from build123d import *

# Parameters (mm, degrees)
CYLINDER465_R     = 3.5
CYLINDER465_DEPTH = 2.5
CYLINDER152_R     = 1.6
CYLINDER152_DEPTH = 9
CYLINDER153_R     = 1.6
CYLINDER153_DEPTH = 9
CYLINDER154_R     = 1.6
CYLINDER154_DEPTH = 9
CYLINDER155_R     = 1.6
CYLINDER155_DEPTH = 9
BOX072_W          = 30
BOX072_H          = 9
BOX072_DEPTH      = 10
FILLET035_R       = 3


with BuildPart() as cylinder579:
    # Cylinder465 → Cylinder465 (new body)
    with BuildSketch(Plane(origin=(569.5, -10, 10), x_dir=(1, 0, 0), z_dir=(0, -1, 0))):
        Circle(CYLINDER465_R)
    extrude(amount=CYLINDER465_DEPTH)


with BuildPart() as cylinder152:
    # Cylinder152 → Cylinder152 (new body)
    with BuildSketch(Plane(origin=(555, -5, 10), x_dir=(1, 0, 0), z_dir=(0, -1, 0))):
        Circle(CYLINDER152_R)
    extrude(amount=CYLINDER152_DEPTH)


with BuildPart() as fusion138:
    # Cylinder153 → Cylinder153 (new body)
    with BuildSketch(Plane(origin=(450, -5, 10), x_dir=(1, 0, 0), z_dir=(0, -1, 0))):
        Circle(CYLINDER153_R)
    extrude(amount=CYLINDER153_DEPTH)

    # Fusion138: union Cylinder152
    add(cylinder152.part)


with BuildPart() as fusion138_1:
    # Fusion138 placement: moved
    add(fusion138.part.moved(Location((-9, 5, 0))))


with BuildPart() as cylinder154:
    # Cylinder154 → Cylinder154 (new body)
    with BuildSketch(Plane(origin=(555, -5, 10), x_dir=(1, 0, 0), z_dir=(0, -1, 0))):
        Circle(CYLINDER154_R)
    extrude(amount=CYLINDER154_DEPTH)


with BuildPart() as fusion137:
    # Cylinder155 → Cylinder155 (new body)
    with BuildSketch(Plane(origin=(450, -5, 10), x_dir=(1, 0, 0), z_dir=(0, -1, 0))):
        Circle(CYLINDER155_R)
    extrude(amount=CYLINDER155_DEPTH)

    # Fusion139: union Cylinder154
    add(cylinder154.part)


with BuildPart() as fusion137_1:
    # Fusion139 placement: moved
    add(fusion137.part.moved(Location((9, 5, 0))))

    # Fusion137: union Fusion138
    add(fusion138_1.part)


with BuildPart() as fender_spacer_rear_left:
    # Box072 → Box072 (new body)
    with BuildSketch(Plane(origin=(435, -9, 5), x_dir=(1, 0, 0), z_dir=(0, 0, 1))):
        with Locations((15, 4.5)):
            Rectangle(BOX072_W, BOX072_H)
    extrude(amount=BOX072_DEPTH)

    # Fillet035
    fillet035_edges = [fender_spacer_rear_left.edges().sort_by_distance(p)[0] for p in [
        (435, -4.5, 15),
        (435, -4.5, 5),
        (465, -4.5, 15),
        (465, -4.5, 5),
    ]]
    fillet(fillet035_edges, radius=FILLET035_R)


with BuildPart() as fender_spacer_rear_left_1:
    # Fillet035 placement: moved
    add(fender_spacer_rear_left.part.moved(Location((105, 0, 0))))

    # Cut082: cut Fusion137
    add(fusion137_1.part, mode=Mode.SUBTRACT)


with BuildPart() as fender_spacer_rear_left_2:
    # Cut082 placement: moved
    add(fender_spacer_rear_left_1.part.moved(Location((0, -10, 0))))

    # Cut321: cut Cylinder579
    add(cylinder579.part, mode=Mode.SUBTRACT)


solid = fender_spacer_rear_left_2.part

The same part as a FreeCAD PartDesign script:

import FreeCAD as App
import Part
import Sketcher

V = App.Vector
Q = App.Units.Quantity


def edges_at(feature, points):
    """Names of the edges that pass closest to the given points."""
    edges = feature.Shape.Edges
    near = lambda p: min(range(len(edges)), key=lambda i: edges[i].distToShape(Part.Vertex(*p))[0])
    return sorted({f"Edge{near(p) + 1}" for p in points})

doc = App.newDocument("Part")
body = doc.addObject("PartDesign::Body", "Body")

sketch1 = doc.addObject("Sketcher::SketchObject", "Sketch")
body.addObject(sketch1)
sketch1.AttachmentSupport = (doc.XZ_Plane, [""])
sketch1.MapMode = "FlatFace"
sketch1.AttachmentOffset = App.Placement(V(0, 0, 10), App.Rotation())
sketch1.addGeometry(Part.Circle(V(569.5, 10, 0), V(0, 0, 1), 3.5), False)
sketch1.addConstraint(Sketcher.Constraint("Diameter", 0, Q("7 mm")))
sketch1.addConstraint(Sketcher.Constraint("DistanceY", -1, 1, 0, 3, Q("10 mm")))
sketch1.addConstraint(Sketcher.Constraint("DistanceX", -1, 1, 0, 3, Q("569.5 mm")))
pad1 = doc.addObject("PartDesign::Pad", "Pad")
body.addObject(pad1)
pad1.Profile = sketch1
pad1.Length = 2.5
body2 = doc.addObject("PartDesign::Body", "Body001")

sketch2 = doc.addObject("Sketcher::SketchObject", "Sketch001")
body2.addObject(sketch2)
sketch2.AttachmentSupport = (doc.getObject("XZ_Plane001"), [""])
sketch2.MapMode = "FlatFace"
sketch2.AttachmentOffset = App.Placement(V(0, 0, 5), App.Rotation())
sketch2.addGeometry(Part.Circle(V(555, 10, 0), V(0, 0, 1), 1.6), False)
sketch2.addConstraint(Sketcher.Constraint("Diameter", 0, Q("3.2 mm")))
sketch2.addConstraint(Sketcher.Constraint("DistanceX", -1, 1, 0, 3, Q("555 mm")))
sketch2.addConstraint(Sketcher.Constraint("DistanceY", -1, 1, 0, 3, Q("10 mm")))
pad2 = doc.addObject("PartDesign::Pad", "Pad001")
body2.addObject(pad2)
pad2.Profile = sketch2
pad2.Length = 9
body3 = doc.addObject("PartDesign::Body", "Body002")
body3.AllowCompound = True

sketch3 = doc.addObject("Sketcher::SketchObject", "Sketch002")
body3.addObject(sketch3)
sketch3.AttachmentSupport = (doc.getObject("XZ_Plane002"), [""])
sketch3.MapMode = "FlatFace"
sketch3.AttachmentOffset = App.Placement(V(0, 0, 5), App.Rotation())
sketch3.addGeometry(Part.Circle(V(450, 10, 0), V(0, 0, 1), 1.6), False)
sketch3.addConstraint(Sketcher.Constraint("Diameter", 0, Q("3.2 mm")))
sketch3.addConstraint(Sketcher.Constraint("DistanceX", -1, 1, 0, 3, Q("450 mm")))
sketch3.addConstraint(Sketcher.Constraint("DistanceY", -1, 1, 0, 3, Q("10 mm")))
pad3 = doc.addObject("PartDesign::Pad", "Pad002")
body3.addObject(pad3)
pad3.Profile = sketch3
pad3.Length = 9
doc.recompute()

boolean = doc.addObject("PartDesign::Boolean", "Boolean")
body3.addObject(boolean)
boolean.Type = "Fuse"
boolean.addObjects([body2])
body4 = doc.addObject("PartDesign::Body", "Body003")
body4.AllowCompound = True
doc.recompute()

body3.Placement = App.Placement(V(-9, 5, 0), App.Rotation(V(0, 0, 1), 0))
boolean2 = doc.addObject("PartDesign::Boolean", "Boolean001")
body4.addObject(boolean2)
boolean2.Type = "Fuse"
boolean2.addObjects([body3])
body5 = doc.addObject("PartDesign::Body", "Body004")

sketch4 = doc.addObject("Sketcher::SketchObject", "Sketch003")
body5.addObject(sketch4)
sketch4.AttachmentSupport = (doc.getObject("XZ_Plane004"), [""])
sketch4.MapMode = "FlatFace"
sketch4.AttachmentOffset = App.Placement(V(0, 0, 5), App.Rotation())
sketch4.addGeometry(Part.Circle(V(555, 10, 0), V(0, 0, 1), 1.6), False)
sketch4.addConstraint(Sketcher.Constraint("Diameter", 0, Q("3.2 mm")))
sketch4.addConstraint(Sketcher.Constraint("DistanceX", -1, 1, 0, 3, Q("555 mm")))
sketch4.addConstraint(Sketcher.Constraint("DistanceY", -1, 1, 0, 3, Q("10 mm")))
pad4 = doc.addObject("PartDesign::Pad", "Pad003")
body5.addObject(pad4)
pad4.Profile = sketch4
pad4.Length = 9
body6 = doc.addObject("PartDesign::Body", "Body005")
body6.AllowCompound = True

sketch5 = doc.addObject("Sketcher::SketchObject", "Sketch004")
body6.addObject(sketch5)
sketch5.AttachmentSupport = (doc.getObject("XZ_Plane005"), [""])
sketch5.MapMode = "FlatFace"
sketch5.AttachmentOffset = App.Placement(V(0, 0, 5), App.Rotation())
sketch5.addGeometry(Part.Circle(V(450, 10, 0), V(0, 0, 1), 1.6), False)
sketch5.addConstraint(Sketcher.Constraint("Diameter", 0, Q("3.2 mm")))
sketch5.addConstraint(Sketcher.Constraint("DistanceX", -1, 1, 0, 3, Q("450 mm")))
sketch5.addConstraint(Sketcher.Constraint("DistanceY", -1, 1, 0, 3, Q("10 mm")))
pad5 = doc.addObject("PartDesign::Pad", "Pad004")
body6.addObject(pad5)
pad5.Profile = sketch5
pad5.Length = 9
doc.recompute()

boolean3 = doc.addObject("PartDesign::Boolean", "Boolean002")
body6.addObject(boolean3)
boolean3.Type = "Fuse"
boolean3.addObjects([body5])
body7 = doc.addObject("PartDesign::Body", "Body006")
body7.AllowCompound = True
doc.recompute()

body6.Placement = App.Placement(V(9, 5, 0), App.Rotation(V(0, 0, 1), 0))
boolean4 = doc.addObject("PartDesign::Boolean", "Boolean003")
body7.addObject(boolean4)
boolean4.Type = "Fuse"
boolean4.addObjects([body6])
doc.recompute()

boolean5 = doc.addObject("PartDesign::Boolean", "Boolean004")
body7.addObject(boolean5)
boolean5.Type = "Fuse"
boolean5.addObjects([body4])
body8 = doc.addObject("PartDesign::Body", "Body007")

sketch6 = doc.addObject("Sketcher::SketchObject", "Sketch005")
body8.addObject(sketch6)
sketch6.AttachmentSupport = (doc.getObject("XY_Plane007"), [""])
sketch6.MapMode = "FlatFace"
sketch6.AttachmentOffset = App.Placement(V(0, 0, 5), App.Rotation())
sketch6.addGeometry(Part.LineSegment(V(435, 0, 0), V(435, -9, 0)), False)
sketch6.addGeometry(Part.LineSegment(V(435, -9, 0), V(465, -9, 0)), False)
sketch6.addGeometry(Part.LineSegment(V(465, -9, 0), V(465, 0, 0)), False)
sketch6.addGeometry(Part.LineSegment(V(465, 0, 0), V(435, 0, 0)), False)
sketch6.addConstraint(Sketcher.Constraint("Coincident", 0, 2, 1, 1))
sketch6.addConstraint(Sketcher.Constraint("Coincident", 1, 2, 2, 1))
sketch6.addConstraint(Sketcher.Constraint("Coincident", 2, 2, 3, 1))
sketch6.addConstraint(Sketcher.Constraint("Coincident", 3, 2, 0, 1))
sketch6.addConstraint(Sketcher.Constraint("Vertical", 0))
sketch6.addConstraint(Sketcher.Constraint("Horizontal", 1))
sketch6.addConstraint(Sketcher.Constraint("Vertical", 2))
sketch6.addConstraint(Sketcher.Constraint("Horizontal", 3))
sketch6.addConstraint(Sketcher.Constraint("PointOnObject", 2, 2, -1))
sketch6.addConstraint(Sketcher.Constraint("DistanceX", 1, 1, 1, 2, Q("30 mm")))
sketch6.addConstraint(Sketcher.Constraint("DistanceY", 0, 2, 0, 1, Q("9 mm")))
sketch6.addConstraint(Sketcher.Constraint("DistanceX", -1, 1, 0, 2, Q("435 mm")))
pad6 = doc.addObject("PartDesign::Pad", "Pad005")
body8.addObject(pad6)
pad6.Profile = sketch6
pad6.Length = 10
doc.recompute()

fillet = doc.addObject("PartDesign::Fillet", "Fillet")
body8.addObject(fillet)
fillet.Base = (pad6, edges_at(pad6, [
    (435, -4.5, 15),
    (435, -4.5, 5),
    (465, -4.5, 15),
    (465, -4.5, 5),
]))
fillet.Radius = 3
body9 = doc.addObject("PartDesign::Body", "Body008")
doc.recompute()

body8.Placement = App.Placement(V(105, 0, 0), App.Rotation(V(0, 0, 1), 0))
boolean6 = doc.addObject("PartDesign::Boolean", "Boolean005")
body9.addObject(boolean6)
boolean6.Type = "Fuse"
boolean6.addObjects([body8])
doc.recompute()

boolean7 = doc.addObject("PartDesign::Boolean", "Boolean006")
body9.addObject(boolean7)
boolean7.Type = "Cut"
boolean7.addObjects([body7])
body10 = doc.addObject("PartDesign::Body", "Body009")
doc.recompute()

body9.Placement = App.Placement(V(0, -10, 0), App.Rotation(V(0, 0, 1), 0))
boolean8 = doc.addObject("PartDesign::Boolean", "Boolean007")
body10.addObject(boolean8)
boolean8.Type = "Fuse"
boolean8.addObjects([body9])
doc.recompute()

boolean9 = doc.addObject("PartDesign::Boolean", "Boolean008")
body10.addObject(boolean9)
boolean9.Type = "Cut"
boolean9.addObjects([body])

doc.recompute()
